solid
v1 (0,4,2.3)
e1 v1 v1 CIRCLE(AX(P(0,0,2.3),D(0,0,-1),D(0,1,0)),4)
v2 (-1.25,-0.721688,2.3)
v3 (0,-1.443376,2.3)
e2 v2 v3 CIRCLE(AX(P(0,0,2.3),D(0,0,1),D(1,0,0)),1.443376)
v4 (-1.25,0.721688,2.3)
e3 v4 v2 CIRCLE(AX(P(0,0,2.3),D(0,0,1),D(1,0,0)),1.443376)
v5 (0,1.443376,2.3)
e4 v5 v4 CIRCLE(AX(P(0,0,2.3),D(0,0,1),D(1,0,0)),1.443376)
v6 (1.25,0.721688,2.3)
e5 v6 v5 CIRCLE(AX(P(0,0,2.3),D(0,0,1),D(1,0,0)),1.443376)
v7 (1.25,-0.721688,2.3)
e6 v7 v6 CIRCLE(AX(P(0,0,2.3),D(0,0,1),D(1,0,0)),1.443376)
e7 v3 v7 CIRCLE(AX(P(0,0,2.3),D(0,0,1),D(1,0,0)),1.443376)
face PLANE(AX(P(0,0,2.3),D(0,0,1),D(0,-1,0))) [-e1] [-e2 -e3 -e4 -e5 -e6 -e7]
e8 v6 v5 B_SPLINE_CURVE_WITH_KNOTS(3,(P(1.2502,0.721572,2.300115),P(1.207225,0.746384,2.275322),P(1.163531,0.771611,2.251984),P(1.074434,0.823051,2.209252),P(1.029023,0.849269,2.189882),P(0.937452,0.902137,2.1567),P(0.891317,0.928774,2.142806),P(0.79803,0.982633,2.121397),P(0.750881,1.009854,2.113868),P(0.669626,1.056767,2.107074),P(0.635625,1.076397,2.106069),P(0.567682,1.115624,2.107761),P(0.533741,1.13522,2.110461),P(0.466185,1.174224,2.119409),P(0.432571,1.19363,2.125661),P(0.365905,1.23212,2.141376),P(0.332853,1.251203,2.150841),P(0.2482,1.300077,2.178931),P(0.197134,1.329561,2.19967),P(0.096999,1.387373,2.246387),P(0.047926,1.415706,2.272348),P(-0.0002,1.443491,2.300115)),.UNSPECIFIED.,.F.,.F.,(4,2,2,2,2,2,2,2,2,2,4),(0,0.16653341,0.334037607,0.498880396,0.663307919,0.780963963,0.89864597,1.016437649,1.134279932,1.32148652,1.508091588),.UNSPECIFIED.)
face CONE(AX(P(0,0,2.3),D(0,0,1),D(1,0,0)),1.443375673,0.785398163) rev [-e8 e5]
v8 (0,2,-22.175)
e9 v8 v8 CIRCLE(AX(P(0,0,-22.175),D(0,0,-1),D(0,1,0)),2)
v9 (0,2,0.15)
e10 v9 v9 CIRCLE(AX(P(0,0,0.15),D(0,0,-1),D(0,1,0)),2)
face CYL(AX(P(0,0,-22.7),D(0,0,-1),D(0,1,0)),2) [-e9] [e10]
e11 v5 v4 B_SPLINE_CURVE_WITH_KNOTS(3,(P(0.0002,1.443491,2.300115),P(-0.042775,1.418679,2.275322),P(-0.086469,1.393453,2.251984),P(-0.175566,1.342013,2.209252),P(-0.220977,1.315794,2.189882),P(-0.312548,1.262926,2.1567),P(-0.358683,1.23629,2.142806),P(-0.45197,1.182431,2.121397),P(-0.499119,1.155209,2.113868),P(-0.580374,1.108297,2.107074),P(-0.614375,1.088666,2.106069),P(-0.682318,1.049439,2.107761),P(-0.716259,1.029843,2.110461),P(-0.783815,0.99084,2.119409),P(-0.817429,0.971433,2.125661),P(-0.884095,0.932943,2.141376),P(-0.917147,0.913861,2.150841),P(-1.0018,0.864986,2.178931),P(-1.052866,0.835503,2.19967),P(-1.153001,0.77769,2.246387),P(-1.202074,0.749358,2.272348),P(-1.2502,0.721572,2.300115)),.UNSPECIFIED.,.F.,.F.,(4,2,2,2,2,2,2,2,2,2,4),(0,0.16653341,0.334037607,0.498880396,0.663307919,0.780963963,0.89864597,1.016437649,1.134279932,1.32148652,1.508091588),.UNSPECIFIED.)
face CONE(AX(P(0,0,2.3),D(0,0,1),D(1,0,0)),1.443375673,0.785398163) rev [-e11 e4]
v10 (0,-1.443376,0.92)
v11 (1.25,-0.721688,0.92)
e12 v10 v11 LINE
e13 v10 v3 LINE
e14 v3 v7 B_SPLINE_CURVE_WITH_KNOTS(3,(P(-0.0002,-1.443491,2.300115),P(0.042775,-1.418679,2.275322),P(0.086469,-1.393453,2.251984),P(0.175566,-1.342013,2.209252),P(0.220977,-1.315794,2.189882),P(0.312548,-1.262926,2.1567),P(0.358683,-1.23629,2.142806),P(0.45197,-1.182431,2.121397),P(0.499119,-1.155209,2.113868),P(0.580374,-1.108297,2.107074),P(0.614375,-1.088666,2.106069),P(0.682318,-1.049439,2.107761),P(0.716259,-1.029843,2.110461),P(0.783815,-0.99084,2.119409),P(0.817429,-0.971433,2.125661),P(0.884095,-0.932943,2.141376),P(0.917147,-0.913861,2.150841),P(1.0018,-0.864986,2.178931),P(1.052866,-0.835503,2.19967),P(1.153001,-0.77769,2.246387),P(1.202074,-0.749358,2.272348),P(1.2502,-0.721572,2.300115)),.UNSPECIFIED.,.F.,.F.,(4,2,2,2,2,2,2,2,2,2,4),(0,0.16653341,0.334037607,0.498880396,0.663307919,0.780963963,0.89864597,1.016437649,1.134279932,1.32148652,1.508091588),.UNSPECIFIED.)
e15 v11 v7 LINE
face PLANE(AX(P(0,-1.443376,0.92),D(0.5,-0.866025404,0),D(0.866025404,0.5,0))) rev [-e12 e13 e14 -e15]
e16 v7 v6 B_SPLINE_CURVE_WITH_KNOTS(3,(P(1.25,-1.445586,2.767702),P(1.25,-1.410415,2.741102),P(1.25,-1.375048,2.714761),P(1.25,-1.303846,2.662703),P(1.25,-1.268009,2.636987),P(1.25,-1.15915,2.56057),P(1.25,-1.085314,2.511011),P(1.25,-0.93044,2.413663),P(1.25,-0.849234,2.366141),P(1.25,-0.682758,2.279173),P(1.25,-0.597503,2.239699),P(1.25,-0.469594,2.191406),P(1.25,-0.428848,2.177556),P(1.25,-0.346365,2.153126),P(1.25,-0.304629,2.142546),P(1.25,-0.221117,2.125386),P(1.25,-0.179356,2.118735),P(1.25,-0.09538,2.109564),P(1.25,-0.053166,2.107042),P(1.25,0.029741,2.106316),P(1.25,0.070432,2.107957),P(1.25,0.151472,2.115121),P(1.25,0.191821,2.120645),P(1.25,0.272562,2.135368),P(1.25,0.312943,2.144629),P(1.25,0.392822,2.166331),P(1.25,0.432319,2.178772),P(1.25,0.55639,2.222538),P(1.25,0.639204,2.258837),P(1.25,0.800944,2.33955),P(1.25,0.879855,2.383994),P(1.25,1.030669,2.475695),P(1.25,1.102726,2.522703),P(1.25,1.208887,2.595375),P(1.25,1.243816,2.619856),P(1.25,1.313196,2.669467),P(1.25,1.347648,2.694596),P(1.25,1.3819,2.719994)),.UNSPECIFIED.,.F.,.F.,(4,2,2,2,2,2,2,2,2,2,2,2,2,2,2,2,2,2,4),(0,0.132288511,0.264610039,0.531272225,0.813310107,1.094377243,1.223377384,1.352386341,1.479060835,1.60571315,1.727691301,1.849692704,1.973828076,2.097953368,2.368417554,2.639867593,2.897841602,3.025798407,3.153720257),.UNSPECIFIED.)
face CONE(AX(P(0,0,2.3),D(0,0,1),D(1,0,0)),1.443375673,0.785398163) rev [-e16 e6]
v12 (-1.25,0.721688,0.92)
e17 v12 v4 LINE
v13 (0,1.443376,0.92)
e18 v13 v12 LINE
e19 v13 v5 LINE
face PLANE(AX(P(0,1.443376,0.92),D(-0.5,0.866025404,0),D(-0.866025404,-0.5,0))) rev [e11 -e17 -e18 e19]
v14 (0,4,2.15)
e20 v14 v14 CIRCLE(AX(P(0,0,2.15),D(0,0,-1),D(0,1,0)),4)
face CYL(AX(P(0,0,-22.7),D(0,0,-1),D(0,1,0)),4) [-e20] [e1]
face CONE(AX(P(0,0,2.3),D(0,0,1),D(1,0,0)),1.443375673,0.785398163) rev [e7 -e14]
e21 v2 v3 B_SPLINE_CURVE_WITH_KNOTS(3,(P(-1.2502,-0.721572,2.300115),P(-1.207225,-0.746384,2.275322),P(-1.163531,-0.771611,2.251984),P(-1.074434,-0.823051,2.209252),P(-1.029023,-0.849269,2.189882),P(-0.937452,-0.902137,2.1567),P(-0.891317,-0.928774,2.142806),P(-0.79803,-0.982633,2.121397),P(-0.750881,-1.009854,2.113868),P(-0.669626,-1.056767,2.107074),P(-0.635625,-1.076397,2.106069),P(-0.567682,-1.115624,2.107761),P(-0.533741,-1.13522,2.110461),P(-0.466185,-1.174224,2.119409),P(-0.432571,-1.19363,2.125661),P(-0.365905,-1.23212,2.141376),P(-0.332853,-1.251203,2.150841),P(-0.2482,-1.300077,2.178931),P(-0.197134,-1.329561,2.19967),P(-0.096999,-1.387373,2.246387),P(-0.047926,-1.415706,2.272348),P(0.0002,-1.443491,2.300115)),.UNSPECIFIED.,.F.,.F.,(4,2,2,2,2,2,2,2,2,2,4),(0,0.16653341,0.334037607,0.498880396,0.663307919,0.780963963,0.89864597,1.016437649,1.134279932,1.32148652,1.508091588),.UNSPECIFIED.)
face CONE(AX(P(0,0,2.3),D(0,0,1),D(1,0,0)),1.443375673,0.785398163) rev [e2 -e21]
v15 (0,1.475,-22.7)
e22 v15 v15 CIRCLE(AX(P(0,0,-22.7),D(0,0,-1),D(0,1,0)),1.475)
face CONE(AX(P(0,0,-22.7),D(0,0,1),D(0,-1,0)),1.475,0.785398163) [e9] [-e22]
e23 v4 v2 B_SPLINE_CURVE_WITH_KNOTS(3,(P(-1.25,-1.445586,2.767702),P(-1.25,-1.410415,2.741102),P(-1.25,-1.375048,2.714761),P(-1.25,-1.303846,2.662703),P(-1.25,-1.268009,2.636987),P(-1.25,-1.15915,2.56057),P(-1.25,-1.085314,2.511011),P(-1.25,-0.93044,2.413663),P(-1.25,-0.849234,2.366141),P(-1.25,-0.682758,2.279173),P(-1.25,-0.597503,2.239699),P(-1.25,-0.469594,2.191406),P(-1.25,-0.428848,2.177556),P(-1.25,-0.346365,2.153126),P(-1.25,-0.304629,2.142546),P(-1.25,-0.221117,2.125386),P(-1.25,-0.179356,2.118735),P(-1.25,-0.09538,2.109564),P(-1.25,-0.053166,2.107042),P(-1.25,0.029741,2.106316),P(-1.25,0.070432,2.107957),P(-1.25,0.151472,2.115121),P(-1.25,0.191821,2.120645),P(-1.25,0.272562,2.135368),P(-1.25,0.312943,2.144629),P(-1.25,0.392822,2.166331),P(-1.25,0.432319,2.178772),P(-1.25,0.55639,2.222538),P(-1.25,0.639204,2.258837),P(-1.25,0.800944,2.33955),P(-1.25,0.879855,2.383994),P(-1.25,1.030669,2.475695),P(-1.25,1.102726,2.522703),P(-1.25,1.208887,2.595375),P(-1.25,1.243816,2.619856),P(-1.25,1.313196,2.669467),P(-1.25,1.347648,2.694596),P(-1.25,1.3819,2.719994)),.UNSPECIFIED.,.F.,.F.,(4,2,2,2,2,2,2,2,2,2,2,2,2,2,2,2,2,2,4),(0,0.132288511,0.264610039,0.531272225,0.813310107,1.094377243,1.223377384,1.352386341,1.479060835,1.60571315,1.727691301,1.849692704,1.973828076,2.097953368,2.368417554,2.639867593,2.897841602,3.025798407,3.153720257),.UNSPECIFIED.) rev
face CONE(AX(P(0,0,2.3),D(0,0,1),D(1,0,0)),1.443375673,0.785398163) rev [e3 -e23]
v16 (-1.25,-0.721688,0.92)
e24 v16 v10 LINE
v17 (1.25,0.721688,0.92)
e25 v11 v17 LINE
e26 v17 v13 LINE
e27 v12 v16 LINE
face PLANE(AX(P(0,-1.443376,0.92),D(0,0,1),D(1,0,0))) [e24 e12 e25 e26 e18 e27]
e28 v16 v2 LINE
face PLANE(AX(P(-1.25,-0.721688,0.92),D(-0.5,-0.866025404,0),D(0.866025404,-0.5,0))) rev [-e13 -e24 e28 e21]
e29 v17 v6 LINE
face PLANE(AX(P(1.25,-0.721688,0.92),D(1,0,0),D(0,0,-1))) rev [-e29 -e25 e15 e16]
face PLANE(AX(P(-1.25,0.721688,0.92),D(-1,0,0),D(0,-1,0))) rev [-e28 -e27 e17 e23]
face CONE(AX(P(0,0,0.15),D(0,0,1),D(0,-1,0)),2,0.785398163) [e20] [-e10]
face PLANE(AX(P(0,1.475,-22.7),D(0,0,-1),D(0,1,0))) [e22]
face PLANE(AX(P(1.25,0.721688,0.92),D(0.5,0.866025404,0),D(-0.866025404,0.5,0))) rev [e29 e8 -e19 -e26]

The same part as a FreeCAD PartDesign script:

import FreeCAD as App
import Part
import Sketcher
from FreeCAD import Vector
Q = App.Units.Quantity


def add_polygon(sketch, points):
    """Adds a closed chain of lines whose ends are joined by coincident constraints."""
    first, n = sketch.GeometryCount, len(points)
    for a, b in zip(points, points[1:] + points[:1]):
        sketch.addGeometry(Part.LineSegment(App.Vector(*a, 0), App.Vector(*b, 0)), False)
    for i in range(n):
        sketch.addConstraint(Sketcher.Constraint("Coincident", first + i, 2, first + (i + 1) % n, 1))

doc = App.newDocument("Part")
body = doc.addObject("PartDesign::Body", "Body")

sketch1 = doc.addObject("Sketcher::SketchObject", "Sketch")
body.addObject(sketch1)
sketch1.AttachmentSupport = (doc.YZ_Plane, [""])
sketch1.MapMode = "FlatFace"
add_polygon(sketch1, [(4, 2.3), (0, 2.3), (0, -22.7), (1.475, -22.7), (2, -22.175), (2, 0.15), (4, 2.15)])
sketch1.addConstraint([
    Sketcher.Constraint("Horizontal", 0),
    Sketcher.Constraint("Vertical", 1),
    Sketcher.Constraint("Horizontal", 2),
    Sketcher.Constraint("Vertical", 4),
    Sketcher.Constraint("Vertical", 6),
    Sketcher.Constraint("PointOnObject", 0, 2, -2),
    Sketcher.Constraint("Parallel", 3, 5),
    Sketcher.Constraint("DistanceX", 0, 2, 0, 1, Q("4 mm")),
    Sketcher.Constraint("DistanceY", 1, 2, 1, 1, Q("25 mm")),
    Sketcher.Constraint("Angle", 3, Q("45 deg")),
    Sketcher.Constraint("DistanceX", -1, 1, 3, 2, Q("2 mm")),
    Sketcher.Constraint("DistanceY", 6, 1, 6, 2, Q("0.15 mm")),
    Sketcher.Constraint("DistanceY", -1, 1, 0, 2, Q("2.3 mm")),
    Sketcher.Constraint("DistanceX", 2, 1, 2, 2, Q("1.475 mm")),
])
revolution = doc.addObject("PartDesign::Revolution", "Revolution")
body.addObject(revolution)
revolution.Profile = sketch1
revolution.ReferenceAxis = (sketch1, ["V_Axis"])
revolution.Angle = 360

sketch2 = doc.addObject("Sketcher::SketchObject", "Sketch001")
body.addObject(sketch2)
sketch2.AttachmentSupport = (doc.XY_Plane, [""])
sketch2.MapMode = "FlatFace"
sketch2.AttachmentOffset = App.Placement(Vector(0, 0, 2.3), App.Rotation())
add_polygon(sketch2, [(0, -1.443376), (1.25, -0.721688), (1.25, 0.721688), (0, 1.443376), (-1.25, 0.721688), (-1.25, -0.721688)])
sketch2.addConstraint([
    Sketcher.Constraint("Vertical", 1),
    Sketcher.Constraint("Vertical", 4),
    Sketcher.Constraint("Symmetric", 0, 2, 3, 2, -1, 1),
    Sketcher.Constraint("Symmetric", 2, 2, 5, 2, -1, 1),
    Sketcher.Constraint("PointOnObject", 2, 2, -2),
    Sketcher.Constraint("Parallel", 2, 5),
    Sketcher.Constraint("Horizontal", 1, 2, 3, 2),
    Sketcher.Constraint("Angle", 0, Q("30 deg")),
    Sketcher.Constraint("DistanceX", 3, 2, 1, 2, Q("2.5 mm")),
    Sketcher.Constraint("DistanceY", 1, 1, 1, 2, Q("1.443376 mm")),
])
pocket1 = doc.addObject("PartDesign::Pocket", "Pocket")
body.addObject(pocket1)
pocket1.Profile = sketch2
pocket1.Length = 1.38

sketch3 = doc.addObject("Sketcher::SketchObject", "Sketch002")
body.addObject(sketch3)
sketch3.AttachmentSupport = (doc.XY_Plane, [""])
sketch3.MapMode = "FlatFace"
sketch3.AttachmentOffset = App.Placement(Vector(0, 0, 2.3), App.Rotation())
sketch3.addGeometry(Part.Circle(Vector(0, 0, 0), Vector(0, 0, 1), 1.443376), False)
sketch3.addConstraint([
    Sketcher.Constraint("Coincident", 0, 3, -1, 1),
    Sketcher.Constraint("Diameter", 0, Q("2.886751 mm")),
])
pocket2 = doc.addObject("PartDesign::Pocket", "Pocket001")
body.addObject(pocket2)
pocket2.Profile = sketch3
pocket2.Length = 1.38
pocket2.TaperAngle = -45

doc.recompute()
